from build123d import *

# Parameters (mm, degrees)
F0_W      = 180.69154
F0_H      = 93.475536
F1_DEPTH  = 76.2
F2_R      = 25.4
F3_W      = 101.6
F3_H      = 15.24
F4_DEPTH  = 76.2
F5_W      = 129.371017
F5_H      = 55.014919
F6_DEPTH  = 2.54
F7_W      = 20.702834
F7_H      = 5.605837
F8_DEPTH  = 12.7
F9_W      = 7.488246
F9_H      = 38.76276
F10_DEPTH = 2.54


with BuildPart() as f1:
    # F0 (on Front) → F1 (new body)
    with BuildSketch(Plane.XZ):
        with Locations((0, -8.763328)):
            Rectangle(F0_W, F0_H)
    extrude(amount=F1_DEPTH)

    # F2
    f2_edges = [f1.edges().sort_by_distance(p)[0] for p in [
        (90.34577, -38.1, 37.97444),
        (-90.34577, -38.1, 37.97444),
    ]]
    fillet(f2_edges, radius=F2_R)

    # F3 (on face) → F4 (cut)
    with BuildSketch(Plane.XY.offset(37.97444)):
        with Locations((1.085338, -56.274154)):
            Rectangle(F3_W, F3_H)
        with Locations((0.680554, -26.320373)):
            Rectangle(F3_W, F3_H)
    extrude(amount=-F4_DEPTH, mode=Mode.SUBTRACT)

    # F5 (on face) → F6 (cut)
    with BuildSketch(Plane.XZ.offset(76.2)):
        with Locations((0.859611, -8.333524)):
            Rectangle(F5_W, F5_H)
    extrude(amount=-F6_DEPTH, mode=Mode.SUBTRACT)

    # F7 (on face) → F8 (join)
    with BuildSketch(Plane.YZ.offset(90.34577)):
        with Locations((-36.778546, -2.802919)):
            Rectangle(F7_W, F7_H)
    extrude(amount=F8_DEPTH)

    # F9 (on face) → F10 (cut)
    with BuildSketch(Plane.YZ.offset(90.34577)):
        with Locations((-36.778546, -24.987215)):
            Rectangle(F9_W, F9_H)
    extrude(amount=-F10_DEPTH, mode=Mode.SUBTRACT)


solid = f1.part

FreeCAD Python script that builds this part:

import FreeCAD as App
import Part
import Sketcher

V = App.Vector
Q = App.Units.Quantity


def edges_at(feature, points):
    """Names of the edges that pass closest to the given points."""
    edges = feature.Shape.Edges
    near = lambda p: min(range(len(edges)), key=lambda i: edges[i].distToShape(Part.Vertex(*p))[0])
    return sorted({f"Edge{near(p) + 1}" for p in points})

doc = App.newDocument("Part")
body = doc.addObject("PartDesign::Body", "Body")

sketch1 = body.newObject("Sketcher::SketchObject", "Sketch")
sketch1.AttachmentSupport = (doc.getObject("XZ_Plane"), [""])
sketch1.MapMode = "FlatFace"
sketch1.addGeometry([
    Part.LineSegment(V(-90.34577, 37.97444, 0), V(-90.34577, -55.501096, 0)),
    Part.LineSegment(V(-90.34577, -55.501096, 0), V(90.34577, -55.501096, 0)),
    Part.LineSegment(V(90.34577, -55.501096, 0), V(90.34577, 37.97444, 0)),
    Part.LineSegment(V(90.34577, 37.97444, 0), V(-90.34577, 37.97444, 0)),
], False)
sketch1.addConstraint([
    Sketcher.Constraint("Coincident", 0, 2, 1, 1),
    Sketcher.Constraint("Coincident", 1, 2, 2, 1),
    Sketcher.Constraint("Coincident", 2, 2, 3, 1),
    Sketcher.Constraint("Coincident", 3, 2, 0, 1),
    Sketcher.Constraint("Vertical", 0),
    Sketcher.Constraint("Horizontal", 1),
    Sketcher.Constraint("Vertical", 2),
    Sketcher.Constraint("Horizontal", 3),
    Sketcher.Constraint("DistanceX", 1, 1, 1, 2, Q("180.69154 mm")),
    Sketcher.Constraint("DistanceY", 0, 2, 0, 1, Q("93.475536 mm")),
    Sketcher.Constraint("DistanceX", 0, 2, -1, 1, Q("90.34577 mm")),
    Sketcher.Constraint("DistanceY", -1, 1, 2, 2, Q("37.97444 mm")),
])
pad1 = body.newObject("PartDesign::Pad", "Pad")
pad1.Profile = sketch1
pad1.Length = Q("3 in")
doc.recompute()

fillet = body.newObject("PartDesign::Fillet", "Fillet")
fillet.Base = (pad1, edges_at(pad1, [(90.346, -38.1, 37.974), (-90.346, -38.1, 37.974)]))
fillet.Radius = Q("1 in")

sketch2 = body.newObject("Sketcher::SketchObject", "Sketch001")
sketch2.AttachmentSupport = (doc.getObject("XY_Plane"), [""])
sketch2.MapMode = "FlatFace"
sketch2.AttachmentOffset = App.Placement(V(0, 0, 37.97444), App.Rotation())
sketch2.addGeometry([
    Part.LineSegment(V(-49.714662, -48.654154, 0), V(-49.714662, -63.894154, 0)),
    Part.LineSegment(V(-49.714662, -63.894154, 0), V(51.885338, -63.894154, 0)),
    Part.LineSegment(V(51.885338, -63.894154, 0), V(51.885338, -48.654154, 0)),
    Part.LineSegment(V(51.885338, -48.654154, 0), V(-49.714662, -48.654154, 0)),
    Part.LineSegment(V(-50.119446, -18.700373, 0), V(-50.119446, -33.940373, 0)),
    Part.LineSegment(V(-50.119446, -33.940373, 0), V(51.480554, -33.940373, 0)),
    Part.LineSegment(V(51.480554, -33.940373, 0), V(51.480554, -18.700373, 0)),
    Part.LineSegment(V(51.480554, -18.700373, 0), V(-50.119446, -18.700373, 0)),
], False)
sketch2.addConstraint([
    Sketcher.Constraint("Coincident", 0, 2, 1, 1),
    Sketcher.Constraint("Coincident", 1, 2, 2, 1),
    Sketcher.Constraint("Coincident", 2, 2, 3, 1),
    Sketcher.Constraint("Coincident", 3, 2, 0, 1),
    Sketcher.Constraint("Coincident", 4, 2, 5, 1),
    Sketcher.Constraint("Coincident", 5, 2, 6, 1),
    Sketcher.Constraint("Coincident", 6, 2, 7, 1),
    Sketcher.Constraint("Coincident", 7, 2, 4, 1),
    Sketcher.Constraint("Vertical", 0),
    Sketcher.Constraint("Horizontal", 1),
    Sketcher.Constraint("Vertical", 2),
    Sketcher.Constraint("Horizontal", 3),
    Sketcher.Constraint("Vertical", 4),
    Sketcher.Constraint("Horizontal", 5),
    Sketcher.Constraint("Vertical", 6),
    Sketcher.Constraint("Horizontal", 7),
    Sketcher.Constraint("Equal", 3, 5),
    Sketcher.Constraint("Equal", 2, 4),
    Sketcher.Constraint("DistanceX", 1, 1, 1, 2, Q("4 in")),
    Sketcher.Constraint("DistanceY", 0, 2, 0, 1, Q("0.6 in")),
    Sketcher.Constraint("DistanceX", 0, 2, -1, 1, Q("49.714662 mm")),
    Sketcher.Constraint("DistanceY", 3, 2, 4, 2, Q("14.713781 mm")),
    Sketcher.Constraint("DistanceY", 0, 2, -1, 1, Q("63.894154 mm")),
    Sketcher.Constraint("DistanceX", 4, 2, -1, 1, Q("50.119446 mm")),
])
pocket1 = body.newObject("PartDesign::Pocket", "Pocket")
pocket1.Profile = sketch2
pocket1.Length = Q("3 in")

sketch3 = body.newObject("Sketcher::SketchObject", "Sketch002")
sketch3.AttachmentSupport = (doc.getObject("XZ_Plane"), [""])
sketch3.MapMode = "FlatFace"
sketch3.AttachmentOffset = App.Placement(V(0, 0, 3 * 25.4), App.Rotation())
sketch3.addGeometry([
    Part.LineSegment(V(-63.825898, 19.173935, 0), V(-63.825898, -35.840984, 0)),
    Part.LineSegment(V(-63.825898, -35.840984, 0), V(65.545119, -35.840984, 0)),
    Part.LineSegment(V(65.545119, -35.840984, 0), V(65.545119, 19.173935, 0)),
    Part.LineSegment(V(65.545119, 19.173935, 0), V(-63.825898, 19.173935, 0)),
], False)
sketch3.addConstraint([
    Sketcher.Constraint("Coincident", 0, 2, 1, 1),
    Sketcher.Constraint("Coincident", 1, 2, 2, 1),
    Sketcher.Constraint("Coincident", 2, 2, 3, 1),
    Sketcher.Constraint("Coincident", 3, 2, 0, 1),
    Sketcher.Constraint("Vertical", 0),
    Sketcher.Constraint("Horizontal", 1),
    Sketcher.Constraint("Vertical", 2),
    Sketcher.Constraint("Horizontal", 3),
    Sketcher.Constraint("DistanceY", 0, 2, 0, 1, Q("55.014919 mm")),
    Sketcher.Constraint("DistanceX", 1, 1, 1, 2, Q("129.371017 mm")),
    Sketcher.Constraint("DistanceX", -1, 1, 1, 2, Q("65.545119 mm")),
    Sketcher.Constraint("DistanceY", 0, 2, -1, 1, Q("35.840984 mm")),
])
pocket2 = body.newObject("PartDesign::Pocket", "Pocket001")
pocket2.Profile = sketch3
pocket2.Length = Q("0.1 in")

sketch4 = body.newObject("Sketcher::SketchObject", "Sketch003")
sketch4.AttachmentSupport = (doc.getObject("YZ_Plane"), [""])
sketch4.MapMode = "FlatFace"
sketch4.AttachmentOffset = App.Placement(V(0, 0, 90.34577), App.Rotation())
sketch4.addGeometry([
    Part.LineSegment(V(-47.129963, 0, 0), V(-47.129963, -5.605837, 0)),
    Part.LineSegment(V(-47.129963, -5.605837, 0), V(-26.427129, -5.605837, 0)),
    Part.LineSegment(V(-26.427129, -5.605837, 0), V(-26.427129, 0, 0)),
    Part.LineSegment(V(-26.427129, 0, 0), V(-47.129963, 0, 0)),
], False)
sketch4.addConstraint([
    Sketcher.Constraint("Coincident", 0, 2, 1, 1),
    Sketcher.Constraint("Coincident", 1, 2, 2, 1),
    Sketcher.Constraint("Coincident", 2, 2, 3, 1),
    Sketcher.Constraint("Coincident", 3, 2, 0, 1),
    Sketcher.Constraint("Vertical", 0),
    Sketcher.Constraint("Horizontal", 1),
    Sketcher.Constraint("Vertical", 2),
    Sketcher.Constraint("Horizontal", 3),
    Sketcher.Constraint("PointOnObject", 2, 2, -1),
    Sketcher.Constraint("DistanceX", 1, 1, 1, 2, Q("20.702834 mm")),
    Sketcher.Constraint("DistanceY", 0, 2, 0, 1, Q("5.605837 mm")),
    Sketcher.Constraint("DistanceX", 1, 2, -1, 1, Q("26.427129 mm")),
])
pad2 = body.newObject("PartDesign::Pad", "Pad001")
pad2.Profile = sketch4
pad2.Length = Q("0.5 in")

sketch5 = body.newObject("Sketcher::SketchObject", "Sketch004")
sketch5.AttachmentSupport = (doc.getObject("YZ_Plane"), [""])
sketch5.MapMode = "FlatFace"
sketch5.AttachmentOffset = App.Placement(V(0, 0, 90.34577), App.Rotation())
sketch5.addGeometry([
    Part.LineSegment(V(-40.522669, -5.605835, 0), V(-40.522669, -44.368595, 0)),
    Part.LineSegment(V(-40.522669, -44.368595, 0), V(-33.034423, -44.368595, 0)),
    Part.LineSegment(V(-33.034423, -44.368595, 0), V(-33.034423, -5.605835, 0)),
    Part.LineSegment(V(-33.034423, -5.605835, 0), V(-40.522669, -5.605835, 0)),
], False)
sketch5.addConstraint([
    Sketcher.Constraint("Coincident", 0, 2, 1, 1),
    Sketcher.Constraint("Coincident", 1, 2, 2, 1),
    Sketcher.Constraint("Coincident", 2, 2, 3, 1),
    Sketcher.Constraint("Coincident", 3, 2, 0, 1),
    Sketcher.Constraint("Vertical", 0),
    Sketcher.Constraint("Horizontal", 1),
    Sketcher.Constraint("Vertical", 2),
    Sketcher.Constraint("Horizontal", 3),
    Sketcher.Constraint("DistanceY", 0, 2, 0, 1, Q("38.76276 mm")),
    Sketcher.Constraint("DistanceX", 1, 1, 1, 2, Q("7.488246 mm")),
    Sketcher.Constraint("DistanceX", 0, 2, -1, 1, Q("40.522669 mm")),
    Sketcher.Constraint("DistanceY", 0, 2, -1, 1, Q("44.368595 mm")),
])
pocket3 = body.newObject("PartDesign::Pocket", "Pocket002")
pocket3.Profile = sketch5
pocket3.Length = Q("0.1 in")

doc.recompute()
